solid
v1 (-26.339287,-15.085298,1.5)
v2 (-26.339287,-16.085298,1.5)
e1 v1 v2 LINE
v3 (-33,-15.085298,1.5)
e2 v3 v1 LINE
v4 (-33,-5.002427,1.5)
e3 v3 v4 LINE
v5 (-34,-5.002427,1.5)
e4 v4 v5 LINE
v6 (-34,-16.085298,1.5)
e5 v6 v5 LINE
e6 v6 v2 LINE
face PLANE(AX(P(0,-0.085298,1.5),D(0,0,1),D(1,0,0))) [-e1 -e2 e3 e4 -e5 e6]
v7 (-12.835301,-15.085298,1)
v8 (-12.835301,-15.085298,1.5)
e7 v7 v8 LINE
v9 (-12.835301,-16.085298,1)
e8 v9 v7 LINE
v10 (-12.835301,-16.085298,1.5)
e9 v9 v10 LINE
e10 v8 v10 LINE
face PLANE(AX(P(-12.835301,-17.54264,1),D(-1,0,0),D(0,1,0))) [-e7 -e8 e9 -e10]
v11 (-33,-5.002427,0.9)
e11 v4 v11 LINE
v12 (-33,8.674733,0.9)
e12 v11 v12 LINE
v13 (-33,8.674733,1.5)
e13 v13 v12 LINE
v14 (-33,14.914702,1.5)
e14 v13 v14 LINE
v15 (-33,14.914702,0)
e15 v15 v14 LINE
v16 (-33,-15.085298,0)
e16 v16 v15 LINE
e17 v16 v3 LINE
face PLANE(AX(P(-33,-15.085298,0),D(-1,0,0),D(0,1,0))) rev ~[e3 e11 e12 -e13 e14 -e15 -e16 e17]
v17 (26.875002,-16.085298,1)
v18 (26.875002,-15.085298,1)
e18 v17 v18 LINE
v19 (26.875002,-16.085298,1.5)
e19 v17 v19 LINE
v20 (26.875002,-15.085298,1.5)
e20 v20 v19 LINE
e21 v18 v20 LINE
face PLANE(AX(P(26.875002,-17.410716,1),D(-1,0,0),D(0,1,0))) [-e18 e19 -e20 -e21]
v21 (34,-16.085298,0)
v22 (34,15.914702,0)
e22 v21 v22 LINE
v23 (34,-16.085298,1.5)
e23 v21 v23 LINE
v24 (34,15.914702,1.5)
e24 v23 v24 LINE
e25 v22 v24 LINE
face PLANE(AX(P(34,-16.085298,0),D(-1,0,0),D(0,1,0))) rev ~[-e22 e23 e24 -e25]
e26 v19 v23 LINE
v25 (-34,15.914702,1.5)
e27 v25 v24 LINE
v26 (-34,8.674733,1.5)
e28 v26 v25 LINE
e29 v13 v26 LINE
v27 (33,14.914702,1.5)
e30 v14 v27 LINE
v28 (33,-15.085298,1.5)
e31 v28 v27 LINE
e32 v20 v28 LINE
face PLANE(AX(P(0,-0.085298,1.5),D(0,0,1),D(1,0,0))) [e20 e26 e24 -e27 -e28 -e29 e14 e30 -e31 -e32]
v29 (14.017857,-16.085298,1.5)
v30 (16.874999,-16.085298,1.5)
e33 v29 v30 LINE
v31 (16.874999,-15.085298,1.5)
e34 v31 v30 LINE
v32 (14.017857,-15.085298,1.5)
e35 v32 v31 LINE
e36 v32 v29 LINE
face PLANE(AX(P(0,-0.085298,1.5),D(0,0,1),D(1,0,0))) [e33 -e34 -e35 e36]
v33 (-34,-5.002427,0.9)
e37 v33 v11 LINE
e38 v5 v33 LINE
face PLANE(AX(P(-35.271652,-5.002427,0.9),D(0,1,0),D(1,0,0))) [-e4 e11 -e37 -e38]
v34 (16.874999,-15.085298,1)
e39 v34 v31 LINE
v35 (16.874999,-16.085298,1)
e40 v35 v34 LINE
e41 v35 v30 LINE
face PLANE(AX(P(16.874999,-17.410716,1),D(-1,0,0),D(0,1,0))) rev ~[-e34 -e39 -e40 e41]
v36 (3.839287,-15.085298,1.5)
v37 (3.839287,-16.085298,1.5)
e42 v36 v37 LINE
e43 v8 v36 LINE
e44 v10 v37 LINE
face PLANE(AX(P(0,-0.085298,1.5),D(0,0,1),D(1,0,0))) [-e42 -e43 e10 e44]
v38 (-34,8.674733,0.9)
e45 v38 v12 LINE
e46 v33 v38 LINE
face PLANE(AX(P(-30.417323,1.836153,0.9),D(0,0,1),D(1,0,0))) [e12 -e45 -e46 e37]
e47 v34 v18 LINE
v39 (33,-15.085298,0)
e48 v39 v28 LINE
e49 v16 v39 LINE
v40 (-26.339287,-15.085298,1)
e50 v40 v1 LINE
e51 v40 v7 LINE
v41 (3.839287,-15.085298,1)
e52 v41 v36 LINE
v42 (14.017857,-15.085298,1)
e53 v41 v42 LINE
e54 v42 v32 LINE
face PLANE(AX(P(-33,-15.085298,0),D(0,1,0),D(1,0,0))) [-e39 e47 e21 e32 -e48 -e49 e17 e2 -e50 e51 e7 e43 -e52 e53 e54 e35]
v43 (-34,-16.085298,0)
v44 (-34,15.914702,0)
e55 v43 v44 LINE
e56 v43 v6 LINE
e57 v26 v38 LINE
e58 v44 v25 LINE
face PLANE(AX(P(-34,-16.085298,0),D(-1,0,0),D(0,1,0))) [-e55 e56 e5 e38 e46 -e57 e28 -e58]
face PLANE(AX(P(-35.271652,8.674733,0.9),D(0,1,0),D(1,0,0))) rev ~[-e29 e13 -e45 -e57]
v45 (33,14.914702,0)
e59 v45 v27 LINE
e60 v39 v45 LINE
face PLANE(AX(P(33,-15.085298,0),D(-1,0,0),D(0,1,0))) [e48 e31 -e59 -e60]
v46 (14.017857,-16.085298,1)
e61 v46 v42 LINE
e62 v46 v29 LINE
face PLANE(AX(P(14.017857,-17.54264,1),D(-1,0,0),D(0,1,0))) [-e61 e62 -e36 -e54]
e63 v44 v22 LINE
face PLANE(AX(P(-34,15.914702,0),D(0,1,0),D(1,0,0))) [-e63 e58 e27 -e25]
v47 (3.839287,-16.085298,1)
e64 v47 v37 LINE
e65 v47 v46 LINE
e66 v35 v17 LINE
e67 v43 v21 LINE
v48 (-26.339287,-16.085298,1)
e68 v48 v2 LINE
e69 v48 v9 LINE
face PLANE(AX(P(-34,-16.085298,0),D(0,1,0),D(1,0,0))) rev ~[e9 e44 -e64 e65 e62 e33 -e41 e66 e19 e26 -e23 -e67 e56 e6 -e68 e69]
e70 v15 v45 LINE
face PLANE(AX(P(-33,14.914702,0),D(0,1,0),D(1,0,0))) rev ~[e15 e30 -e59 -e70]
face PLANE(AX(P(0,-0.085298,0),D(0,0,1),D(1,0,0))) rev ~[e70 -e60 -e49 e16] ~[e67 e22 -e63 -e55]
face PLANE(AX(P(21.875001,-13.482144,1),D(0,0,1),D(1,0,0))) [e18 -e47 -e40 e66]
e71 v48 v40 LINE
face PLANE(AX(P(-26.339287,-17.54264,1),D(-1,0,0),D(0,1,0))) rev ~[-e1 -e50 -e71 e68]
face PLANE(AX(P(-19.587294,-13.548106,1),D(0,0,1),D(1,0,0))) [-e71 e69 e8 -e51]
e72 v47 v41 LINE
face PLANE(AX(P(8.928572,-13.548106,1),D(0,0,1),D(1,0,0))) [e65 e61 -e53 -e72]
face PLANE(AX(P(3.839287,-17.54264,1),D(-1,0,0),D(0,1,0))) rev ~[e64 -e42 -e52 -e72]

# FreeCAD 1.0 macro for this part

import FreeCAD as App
import Part
import Sketcher
from FreeCAD import Vector
Q = App.Units.Quantity

doc = App.newDocument("Part")
body = doc.addObject("PartDesign::Body", "Body")

# Sketch on XY plane
sketch1 = body.newObject("Sketcher::SketchObject", "Sketch")
sketch1.AttachmentSupport = (doc.getObject("XY_Plane"), [""])
sketch1.MapMode = "FlatFace"
sketch1.addGeometry([
    Part.LineSegment(Vector(-34, 15.914702, 0), Vector(-34, -16.085298, 0)),  # 0
    Part.LineSegment(Vector(-34, -16.085298, 0), Vector(34, -16.085298, 0)),  # 1
    Part.LineSegment(Vector(34, -16.085298, 0), Vector(34, 15.914702, 0)),  # 2
    Part.LineSegment(Vector(34, 15.914702, 0), Vector(-34, 15.914702, 0)),  # 3
    Part.LineSegment(Vector(33, -15.085298, 0), Vector(-33, -15.085298, 0)),  # 4
    Part.LineSegment(Vector(-33, -15.085298, 0), Vector(-33, 14.914702, 0)),  # 5
    Part.LineSegment(Vector(-33, 14.914702, 0), Vector(33, 14.914702, 0)),  # 6
    Part.LineSegment(Vector(33, 14.914702, 0), Vector(33, -15.085298, 0)),  # 7
], False)
sketch1.addConstraint([
    Sketcher.Constraint("Coincident", 0, 2, 1, 1),
    Sketcher.Constraint("Coincident", 1, 2, 2, 1),
    Sketcher.Constraint("Coincident", 2, 2, 3, 1),
    Sketcher.Constraint("Coincident", 3, 2, 0, 1),
    Sketcher.Constraint("Coincident", 4, 2, 5, 1),
    Sketcher.Constraint("Coincident", 5, 2, 6, 1),
    Sketcher.Constraint("Coincident", 6, 2, 7, 1),
    Sketcher.Constraint("Coincident", 7, 2, 4, 1),
    Sketcher.Constraint("Vertical", 0),
    Sketcher.Constraint("Horizontal", 1),
    Sketcher.Constraint("Vertical", 2),
    Sketcher.Constraint("Horizontal", 3),
    Sketcher.Constraint("Horizontal", 4),
    Sketcher.Constraint("Vertical", 5),
    Sketcher.Constraint("Horizontal", 6),
    Sketcher.Constraint("Vertical", 7),
    Sketcher.Constraint("DistanceX", 1, 1, 1, 2, Q("68 mm")),
    Sketcher.Constraint("DistanceX", 4, 2, 4, 1, Q("66.000001 mm")),
    Sketcher.Constraint("DistanceY", 0, 2, 0, 1, Q("32 mm")),
    Sketcher.Constraint("DistanceY", 5, 1, 5, 2, Q("30 mm")),
    Sketcher.Constraint("DistanceX", 0, 2, -1, 1, Q("34 mm")),
    Sketcher.Constraint("DistanceX", 4, 2, -1, 1, Q("33 mm")),
    Sketcher.Constraint("DistanceY", 0, 2, 4, 2, Q("1 mm")),
    Sketcher.Constraint("DistanceY", 0, 2, -1, 1, Q("16.085298 mm")),
])
pad1 = body.newObject("PartDesign::Pad", "Pad")
pad1.Profile = sketch1
pad1.Length = 1.5

# Sketch on XY plane
sketch2 = body.newObject("Sketcher::SketchObject", "Sketch001")
sketch2.AttachmentSupport = (doc.getObject("XY_Plane"), [""])
sketch2.MapMode = "FlatFace"
sketch2.AttachmentOffset = App.Placement(Vector(0, 0, 0.9), App.Rotation())
sketch2.addGeometry([
    Part.LineSegment(Vector(-35.271652, 8.674733, 0), Vector(-35.271652, -5.002427, 0)),
    Part.LineSegment(Vector(-35.271652, -5.002427, 0), Vector(-25.562994, -5.002427, 0)),
    Part.LineSegment(Vector(-25.562994, -5.002427, 0), Vector(-25.562994, 8.674733, 0)),
    Part.LineSegment(Vector(-25.562994, 8.674733, 0), Vector(-35.271652, 8.674733, 0)),
], False)
sketch2.addConstraint([
    Sketcher.Constraint("Coincident", 0, 2, 1, 1),
    Sketcher.Constraint("Coincident", 1, 2, 2, 1),
    Sketcher.Constraint("Coincident", 2, 2, 3, 1),
    Sketcher.Constraint("Coincident", 3, 2, 0, 1),
    Sketcher.Constraint("Vertical", 0),
    Sketcher.Constraint("Horizontal", 1),
    Sketcher.Constraint("Vertical", 2),
    Sketcher.Constraint("Horizontal", 3),
    Sketcher.Constraint("DistanceY", 0, 2, 0, 1, Q("13.677161 mm")),
    Sketcher.Constraint("DistanceX", 1, 1, 1, 2, Q("9.708658 mm")),
    Sketcher.Constraint("DistanceX", 0, 2, -1, 1, Q("35.271652 mm")),
    Sketcher.Constraint("DistanceY", 0, 2, -1, 1, Q("5.002427 mm")),
])
pocket1 = body.newObject("PartDesign::Pocket", "Pocket")
pocket1.Profile = sketch2
pocket1.Length = 2.3
pocket1.Reversed = True

# Sketch on XY plane
sketch3 = body.newObject("Sketcher::SketchObject", "Sketch002")
sketch3.AttachmentSupport = (doc.getObject("XY_Plane"), [""])
sketch3.MapMode = "FlatFace"
sketch3.AttachmentOffset = App.Placement(Vector(0, 0, 1), App.Rotation())
sketch3.addGeometry([
    Part.LineSegment(Vector(-26.339287, -9.553572, 0), Vector(-26.339287, -17.54264, 0)),  # 0
    Part.LineSegment(Vector(-26.339287, -17.54264, 0), Vector(-12.835301, -17.54264, 0)),  # 1
    Part.LineSegment(Vector(-12.835301, -17.54264, 0), Vector(-12.835301, -9.553572, 0)),  # 2
    Part.LineSegment(Vector(-12.835301, -9.553572, 0), Vector(-26.339287, -9.553572, 0)),  # 3
    Part.LineSegment(Vector(3.839287, -9.553572, 0), Vector(3.839287, -17.54264, 0)),  # 4
    Part.LineSegment(Vector(3.839287, -17.54264, 0), Vector(14.017857, -17.54264, 0)),  # 5
    Part.LineSegment(Vector(14.017857, -17.54264, 0), Vector(14.017857, -9.553572, 0)),  # 6
    Part.LineSegment(Vector(14.017857, -9.553572, 0), Vector(3.839287, -9.553572, 0)),  # 7
    Part.LineSegment(Vector(16.874999, -9.553572, 0), Vector(16.874999, -17.410716, 0)),  # 8
    Part.LineSegment(Vector(16.874999, -17.410716, 0), Vector(26.875002, -17.410716, 0)),  # 9
    Part.LineSegment(Vector(26.875002, -17.410716, 0), Vector(26.875002, -9.553572, 0)),  # 10
    Part.LineSegment(Vector(26.875002, -9.553572, 0), Vector(16.874999, -9.553572, 0)),  # 11
], False)
sketch3.addConstraint([
    Sketcher.Constraint("Coincident", 0, 2, 1, 1),
    Sketcher.Constraint("Coincident", 1, 2, 2, 1),
    Sketcher.Constraint("Coincident", 2, 2, 3, 1),
    Sketcher.Constraint("Coincident", 3, 2, 0, 1),
    Sketcher.Constraint("Coincident", 4, 2, 5, 1),
    Sketcher.Constraint("Coincident", 5, 2, 6, 1),
    Sketcher.Constraint("Coincident", 6, 2, 7, 1),
    Sketcher.Constraint("Coincident", 7, 2, 4, 1),
    Sketcher.Constraint("Coincident", 8, 2, 9, 1),
    Sketcher.Constraint("Coincident", 9, 2, 10, 1),
    Sketcher.Constraint("Coincident", 10, 2, 11, 1),
    Sketcher.Constraint("Coincident", 11, 2, 8, 1),
    Sketcher.Constraint("Vertical", 0),
    Sketcher.Constraint("Horizontal", 1),
    Sketcher.Constraint("Vertical", 2),
    Sketcher.Constraint("Horizontal", 3),
    Sketcher.Constraint("Vertical", 4),
    Sketcher.Constraint("Horizontal", 5),
    Sketcher.Constraint("Vertical", 6),
    Sketcher.Constraint("Horizontal", 7),
    Sketcher.Constraint("Vertical", 8),
    Sketcher.Constraint("Horizontal", 9),
    Sketcher.Constraint("Vertical", 10),
    Sketcher.Constraint("Horizontal", 11),
    Sketcher.Constraint("Horizontal", 1, 2, 4, 2),
    Sketcher.Constraint("Horizontal", 3, 2, 6, 2),
    Sketcher.Constraint("Horizontal", 7, 2, 10, 2),
    Sketcher.Constraint("DistanceX", -1, 1, 8, 2, Q("16.874999 mm")),
    Sketcher.Constraint("DistanceX", 5, 1, 5, 2, Q("10.17857 mm")),
    Sketcher.Constraint("DistanceX", 1, 2, -1, 1, Q("12.835301 mm")),
    Sketcher.Constraint("DistanceX", 1, 1, 1, 2, Q("13.503985 mm")),
    Sketcher.Constraint("DistanceX", 9, 1, 9, 2, Q("10.000004 mm")),
    Sketcher.Constraint("DistanceY", 0, 2, 0, 1, Q("7.989068 mm")),
    Sketcher.Constraint("DistanceY", 8, 2, 8, 1, Q("7.857144 mm")),
    Sketcher.Constraint("DistanceY", 0, 2, -1, 1, Q("17.54264 mm")),
    Sketcher.Constraint("DistanceX", 1, 2, 4, 2, Q("16.674588 mm")),
])
pocket2 = body.newObject("PartDesign::Pocket", "Pocket001")
pocket2.Profile = sketch3
pocket2.Length = 4.6
pocket2.Reversed = True

# Sketch on XY plane
sketch4 = body.newObject("Sketcher::SketchObject", "Sketch003")
sketch4.AttachmentSupport = (doc.getObject("XY_Plane"), [""])
sketch4.MapMode = "FlatFace"
sketch4.AttachmentOffset = App.Placement(Vector(0, 0, 1.5), App.Rotation())
sketch4.addGeometry([
    Part.LineSegment(Vector(-27.351823, 17.465148, 0), Vector(-27.351823, 9.27206, 0)),
    Part.LineSegment(Vector(-27.351823, 9.27206, 0), Vector(27.374813, 9.27206, 0)),
    Part.LineSegment(Vector(27.374813, 9.27206, 0), Vector(27.374813, 17.465148, 0)),
    Part.LineSegment(Vector(27.374813, 17.465148, 0), Vector(-27.351823, 17.465148, 0)),
], False)
sketch4.addConstraint([
    Sketcher.Constraint("Coincident", 0, 2, 1, 1),
    Sketcher.Constraint("Coincident", 1, 2, 2, 1),
    Sketcher.Constraint("Coincident", 2, 2, 3, 1),
    Sketcher.Constraint("Coincident", 3, 2, 0, 1),
    Sketcher.Constraint("Vertical", 0),
    Sketcher.Constraint("Horizontal", 1),
    Sketcher.Constraint("Vertical", 2),
    Sketcher.Constraint("Horizontal", 3),
    Sketcher.Constraint("DistanceX", 1, 1, 1, 2, Q("54.726636 mm")),
    Sketcher.Constraint("DistanceY", 0, 2, 0, 1, Q("8.193088 mm")),
    Sketcher.Constraint("DistanceY", -1, 1, 0, 2, Q("9.27206 mm")),
    Sketcher.Constraint("DistanceX", 0, 2, -1, 1, Q("27.351823 mm")),
])
pocket3 = body.newObject("PartDesign::Pocket", "Pocket002")
pocket3.Profile = sketch4
pocket3.Length = 4
pocket3.Reversed = True

doc.recompute()
